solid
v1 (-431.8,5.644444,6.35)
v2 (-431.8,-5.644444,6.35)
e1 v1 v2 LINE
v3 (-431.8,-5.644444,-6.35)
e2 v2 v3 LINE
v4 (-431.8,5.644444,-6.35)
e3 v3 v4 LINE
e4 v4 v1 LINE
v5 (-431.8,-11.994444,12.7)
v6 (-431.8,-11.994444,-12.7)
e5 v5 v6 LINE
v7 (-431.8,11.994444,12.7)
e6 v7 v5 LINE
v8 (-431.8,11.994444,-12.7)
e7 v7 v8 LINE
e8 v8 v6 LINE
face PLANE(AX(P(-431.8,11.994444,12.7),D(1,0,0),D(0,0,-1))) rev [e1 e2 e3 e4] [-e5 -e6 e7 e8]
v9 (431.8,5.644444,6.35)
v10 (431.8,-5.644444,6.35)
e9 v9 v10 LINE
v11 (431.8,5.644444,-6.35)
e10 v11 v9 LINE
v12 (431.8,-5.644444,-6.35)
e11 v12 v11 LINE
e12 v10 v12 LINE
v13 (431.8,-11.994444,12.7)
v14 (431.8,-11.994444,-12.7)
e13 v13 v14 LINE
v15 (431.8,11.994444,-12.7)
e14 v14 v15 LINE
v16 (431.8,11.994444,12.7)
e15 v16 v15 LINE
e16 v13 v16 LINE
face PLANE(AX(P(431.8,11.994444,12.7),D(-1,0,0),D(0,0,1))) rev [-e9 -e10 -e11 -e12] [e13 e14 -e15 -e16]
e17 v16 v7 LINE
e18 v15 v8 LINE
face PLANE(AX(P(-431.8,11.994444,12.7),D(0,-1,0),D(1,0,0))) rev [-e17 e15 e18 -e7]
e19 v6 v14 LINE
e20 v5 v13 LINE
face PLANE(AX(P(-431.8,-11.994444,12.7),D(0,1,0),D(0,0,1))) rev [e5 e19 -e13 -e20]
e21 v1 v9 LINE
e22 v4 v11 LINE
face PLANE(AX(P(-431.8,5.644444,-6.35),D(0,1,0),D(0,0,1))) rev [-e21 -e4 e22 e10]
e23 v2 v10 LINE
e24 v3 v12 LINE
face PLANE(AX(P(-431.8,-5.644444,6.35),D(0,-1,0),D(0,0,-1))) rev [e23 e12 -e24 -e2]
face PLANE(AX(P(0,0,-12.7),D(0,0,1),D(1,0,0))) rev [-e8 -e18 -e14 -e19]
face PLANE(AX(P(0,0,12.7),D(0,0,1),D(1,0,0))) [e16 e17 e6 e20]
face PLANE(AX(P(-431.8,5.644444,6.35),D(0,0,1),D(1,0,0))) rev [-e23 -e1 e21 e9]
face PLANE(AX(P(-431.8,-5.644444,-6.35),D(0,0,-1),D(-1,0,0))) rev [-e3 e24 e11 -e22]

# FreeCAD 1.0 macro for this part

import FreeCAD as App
import Part
import Sketcher
Q = App.Units.Quantity

doc = App.newDocument("Part")
body = doc.addObject("PartDesign::Body", "Body")

# Sketch on XY plane
sketch1 = doc.addObject("Sketcher::SketchObject", "Sketch")
body.addObject(sketch1)
sketch1.AttachmentSupport = (doc.XY_Plane, [""])
sketch1.MapMode = "FlatFace"
sketch1.addGeometry(Part.LineSegment(App.Vector(-432, 12, 0), App.Vector(-432, -12, 0)), False)
sketch1.addGeometry(Part.LineSegment(App.Vector(-432, -12, 0), App.Vector(432, -12, 0)), False)
sketch1.addGeometry(Part.LineSegment(App.Vector(432, -12, 0), App.Vector(432, 12, 0)), False)
sketch1.addGeometry(Part.LineSegment(App.Vector(432, 12, 0), App.Vector(-432, 12, 0)), False)
sketch1.addConstraint(Sketcher.Constraint("Coincident", 0, 2, 1, 1))
sketch1.addConstraint(Sketcher.Constraint("Coincident", 1, 2, 2, 1))
sketch1.addConstraint(Sketcher.Constraint("Coincident", 2, 2, 3, 1))
sketch1.addConstraint(Sketcher.Constraint("Coincident", 3, 2, 0, 1))
sketch1.addConstraint(Sketcher.Constraint("Vertical", 0))
sketch1.addConstraint(Sketcher.Constraint("Horizontal", 1))
sketch1.addConstraint(Sketcher.Constraint("Vertical", 2))
sketch1.addConstraint(Sketcher.Constraint("Horizontal", 3))
sketch1.addConstraint(Sketcher.Constraint("Symmetric", 0, 2, 2, 2, -1, 1))
sketch1.addConstraint(Sketcher.Constraint("DistanceX", 1, 1, 1, 2, Q("34 in")))
sketch1.addConstraint(Sketcher.Constraint("DistanceY", 0, 2, 0, 1, Q("23.988889 mm")))
pad1 = doc.addObject("PartDesign::Pad", "Pad")
body.addObject(pad1)
pad1.Profile = sketch1
pad1.Length = Q("1 in")
pad1.Midplane = True

# Sketch on YZ plane
sketch2 = doc.addObject("Sketcher::SketchObject", "Sketch001")
body.addObject(sketch2)
sketch2.AttachmentSupport = (doc.YZ_Plane, [""])
sketch2.MapMode = "FlatFace"
sketch2.AttachmentOffset = App.Placement(App.Vector(0, 0, 17 * 25.4), App.Rotation())
sketch2.addGeometry(Part.LineSegment(App.Vector(6, 6, 0), App.Vector(-6, 6, 0)), False)
sketch2.addGeometry(Part.LineSegment(App.Vector(-6, 6, 0), App.Vector(-6, -6, 0)), False)
sketch2.addGeometry(Part.LineSegment(App.Vector(-6, -6, 0), App.Vector(6, -6, 0)), False)
sketch2.addGeometry(Part.LineSegment(App.Vector(6, -6, 0), App.Vector(6, 6, 0)), False)
sketch2.addConstraint(Sketcher.Constraint("Coincident", 0, 2, 1, 1))
sketch2.addConstraint(Sketcher.Constraint("Coincident", 1, 2, 2, 1))
sketch2.addConstraint(Sketcher.Constraint("Coincident", 2, 2, 3, 1))
sketch2.addConstraint(Sketcher.Constraint("Coincident", 3, 2, 0, 1))
sketch2.addConstraint(Sketcher.Constraint("Horizontal", 0))
sketch2.addConstraint(Sketcher.Constraint("Vertical", 1))
sketch2.addConstraint(Sketcher.Constraint("Horizontal", 2))
sketch2.addConstraint(Sketcher.Constraint("Vertical", 3))
sketch2.addConstraint(Sketcher.Constraint("Symmetric", 0, 2, 2, 2, -1, 1))
sketch2.addConstraint(Sketcher.Constraint("DistanceY", 1, 2, 1, 1, Q("0.5 in")))
sketch2.addConstraint(Sketcher.Constraint("DistanceX", 0, 2, 0, 1, Q("11.288889 mm")))
pocket1 = doc.addObject("PartDesign::Pocket", "Pocket")
body.addObject(pocket1)
pocket1.Profile = sketch2
pocket1.Type = "ThroughAll"

doc.recompute()
